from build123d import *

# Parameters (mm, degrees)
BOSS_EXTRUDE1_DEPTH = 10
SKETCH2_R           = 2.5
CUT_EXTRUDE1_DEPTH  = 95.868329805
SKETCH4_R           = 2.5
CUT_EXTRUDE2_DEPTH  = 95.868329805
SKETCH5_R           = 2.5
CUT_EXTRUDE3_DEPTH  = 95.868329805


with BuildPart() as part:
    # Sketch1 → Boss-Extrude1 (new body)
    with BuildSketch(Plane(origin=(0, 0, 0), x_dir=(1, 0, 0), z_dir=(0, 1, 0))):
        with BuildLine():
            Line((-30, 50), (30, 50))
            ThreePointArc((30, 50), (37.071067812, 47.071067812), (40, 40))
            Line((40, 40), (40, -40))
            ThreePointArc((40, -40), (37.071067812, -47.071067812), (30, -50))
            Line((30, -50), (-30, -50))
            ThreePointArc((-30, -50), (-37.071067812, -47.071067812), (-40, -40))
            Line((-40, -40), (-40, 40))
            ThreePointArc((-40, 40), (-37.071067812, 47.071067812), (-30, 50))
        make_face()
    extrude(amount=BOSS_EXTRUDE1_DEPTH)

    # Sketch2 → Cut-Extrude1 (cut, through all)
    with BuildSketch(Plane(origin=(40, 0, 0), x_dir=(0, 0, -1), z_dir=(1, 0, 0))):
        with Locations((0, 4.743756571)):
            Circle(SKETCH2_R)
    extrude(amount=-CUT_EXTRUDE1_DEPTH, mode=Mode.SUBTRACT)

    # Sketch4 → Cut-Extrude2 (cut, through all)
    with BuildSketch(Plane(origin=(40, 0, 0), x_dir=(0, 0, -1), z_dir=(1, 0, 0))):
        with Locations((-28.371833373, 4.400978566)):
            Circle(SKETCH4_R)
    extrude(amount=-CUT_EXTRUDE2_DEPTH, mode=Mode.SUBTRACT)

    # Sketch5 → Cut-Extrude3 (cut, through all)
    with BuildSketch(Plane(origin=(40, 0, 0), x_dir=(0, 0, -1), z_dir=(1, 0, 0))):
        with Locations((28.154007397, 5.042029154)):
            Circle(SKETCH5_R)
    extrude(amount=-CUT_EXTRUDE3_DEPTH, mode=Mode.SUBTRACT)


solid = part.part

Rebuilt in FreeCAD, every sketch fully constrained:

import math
import FreeCAD as App
import Part
import Sketcher
from FreeCAD import Vector

doc = App.newDocument("Part")
body = doc.addObject("PartDesign::Body", "Body")

sketch1 = doc.addObject("Sketcher::SketchObject", "Sketch")
body.addObject(sketch1)
sketch1.AttachmentSupport = (doc.XZ_Plane, [""])
sketch1.MapMode = "FlatFace"
sketch1.addGeometry(Part.LineSegment(Vector(30, -50, 0), Vector(-30, -50, 0)), False)
sketch1.addGeometry(Part.ArcOfCircle(Part.Circle(Vector(-30, -40, 0), Vector(0, 0, 1), 10), math.radians(180), math.radians(270)), False)
sketch1.addGeometry(Part.LineSegment(Vector(-40, -40, 0), Vector(-40, 40, 0)), False)
sketch1.addGeometry(Part.ArcOfCircle(Part.Circle(Vector(-30, 40, 0), Vector(0, 0, 1), 10), math.radians(90), math.radians(180)), False)
sketch1.addGeometry(Part.LineSegment(Vector(-30, 50, 0), Vector(30, 50, 0)), False)
sketch1.addGeometry(Part.ArcOfCircle(Part.Circle(Vector(30, 40, 0), Vector(0, 0, 1), 10), math.radians(0), math.radians(90)), False)
sketch1.addGeometry(Part.LineSegment(Vector(40, 40, 0), Vector(40, -40, 0)), False)
sketch1.addGeometry(Part.ArcOfCircle(Part.Circle(Vector(30, -40, 0), Vector(0, 0, 1), 10), math.radians(-90), math.radians(0)), False)
sketch1.addConstraint(Sketcher.Constraint("Tangent", 0, 2, 1, 2))
sketch1.addConstraint(Sketcher.Constraint("Tangent", 1, 1, 2, 1))
sketch1.addConstraint(Sketcher.Constraint("Tangent", 2, 2, 3, 2))
sketch1.addConstraint(Sketcher.Constraint("Tangent", 3, 1, 4, 1))
sketch1.addConstraint(Sketcher.Constraint("Tangent", 4, 2, 5, 2))
sketch1.addConstraint(Sketcher.Constraint("Tangent", 5, 1, 6, 1))
sketch1.addConstraint(Sketcher.Constraint("Tangent", 6, 2, 7, 2))
sketch1.addConstraint(Sketcher.Constraint("Tangent", 7, 1, 0, 1))
sketch1.addConstraint(Sketcher.Constraint("Horizontal", 0))
sketch1.addConstraint(Sketcher.Constraint("Vertical", 2))
sketch1.addConstraint(Sketcher.Constraint("Horizontal", 4))
sketch1.addConstraint(Sketcher.Constraint("Vertical", 6))
sketch1.addConstraint(Sketcher.Constraint("Equal", 1, 3))
sketch1.addConstraint(Sketcher.Constraint("Equal", 3, 5))
sketch1.addConstraint(Sketcher.Constraint("Equal", 5, 7))
sketch1.addConstraint(Sketcher.Constraint("Symmetric", 1, 3, 5, 3, -1, 1))
sketch1.addConstraint(Sketcher.Constraint("Radius", 1, 10.0))
sketch1.addConstraint(Sketcher.Constraint("DistanceX", 0, 2, 0, 1, 60.0))
sketch1.addConstraint(Sketcher.Constraint("DistanceY", 2, 1, 2, 2, 80.0))
pad1 = doc.addObject("PartDesign::Pad", "Pad")
body.addObject(pad1)
pad1.Profile = sketch1
pad1.Length = 10
pad1.Reversed = True

sketch2 = doc.addObject("Sketcher::SketchObject", "Sketch001")
body.addObject(sketch2)
sketch2.AttachmentSupport = (doc.YZ_Plane, [""])
sketch2.MapMode = "FlatFace"
sketch2.AttachmentOffset = App.Placement(Vector(0, 0, 40), App.Rotation())
sketch2.addGeometry(Part.Circle(Vector(4.7, 0, 0), Vector(0, 0, 1), 2.5), False)
sketch2.addConstraint(Sketcher.Constraint("PointOnObject", 0, 3, -1))
sketch2.addConstraint(Sketcher.Constraint("Diameter", 0, 5.0))
sketch2.addConstraint(Sketcher.Constraint("DistanceX", -1, 1, 0, 3, 4.743757))
pocket1 = doc.addObject("PartDesign::Pocket", "Pocket")
body.addObject(pocket1)
pocket1.Profile = sketch2
pocket1.Type = "ThroughAll"

sketch3 = doc.addObject("Sketcher::SketchObject", "Sketch002")
body.addObject(sketch3)
sketch3.AttachmentSupport = (doc.YZ_Plane, [""])
sketch3.MapMode = "FlatFace"
sketch3.AttachmentOffset = App.Placement(Vector(0, 0, 40), App.Rotation())
sketch3.addGeometry(Part.Circle(Vector(4.4, 28.4, 0), Vector(0, 0, 1), 2.5), False)
sketch3.addConstraint(Sketcher.Constraint("Diameter", 0, 5.0))
sketch3.addConstraint(Sketcher.Constraint("DistanceX", -1, 1, 0, 3, 4.400979))
sketch3.addConstraint(Sketcher.Constraint("DistanceY", -1, 1, 0, 3, 28.371833))
pocket2 = doc.addObject("PartDesign::Pocket", "Pocket001")
body.addObject(pocket2)
pocket2.Profile = sketch3
pocket2.Type = "ThroughAll"

sketch4 = doc.addObject("Sketcher::SketchObject", "Sketch003")
body.addObject(sketch4)
sketch4.AttachmentSupport = (doc.YZ_Plane, [""])
sketch4.MapMode = "FlatFace"
sketch4.AttachmentOffset = App.Placement(Vector(0, 0, 40), App.Rotation())
sketch4.addGeometry(Part.Circle(Vector(5, -28.2, 0), Vector(0, 0, 1), 2.5), False)
sketch4.addConstraint(Sketcher.Constraint("Diameter", 0, 5.0))
sketch4.addConstraint(Sketcher.Constraint("DistanceX", -1, 1, 0, 3, 5.042029))
sketch4.addConstraint(Sketcher.Constraint("DistanceY", 0, 3, -1, 1, 28.154007))
pocket3 = doc.addObject("PartDesign::Pocket", "Pocket002")
body.addObject(pocket3)
pocket3.Profile = sketch4
pocket3.Type = "ThroughAll"

doc.recompute()
